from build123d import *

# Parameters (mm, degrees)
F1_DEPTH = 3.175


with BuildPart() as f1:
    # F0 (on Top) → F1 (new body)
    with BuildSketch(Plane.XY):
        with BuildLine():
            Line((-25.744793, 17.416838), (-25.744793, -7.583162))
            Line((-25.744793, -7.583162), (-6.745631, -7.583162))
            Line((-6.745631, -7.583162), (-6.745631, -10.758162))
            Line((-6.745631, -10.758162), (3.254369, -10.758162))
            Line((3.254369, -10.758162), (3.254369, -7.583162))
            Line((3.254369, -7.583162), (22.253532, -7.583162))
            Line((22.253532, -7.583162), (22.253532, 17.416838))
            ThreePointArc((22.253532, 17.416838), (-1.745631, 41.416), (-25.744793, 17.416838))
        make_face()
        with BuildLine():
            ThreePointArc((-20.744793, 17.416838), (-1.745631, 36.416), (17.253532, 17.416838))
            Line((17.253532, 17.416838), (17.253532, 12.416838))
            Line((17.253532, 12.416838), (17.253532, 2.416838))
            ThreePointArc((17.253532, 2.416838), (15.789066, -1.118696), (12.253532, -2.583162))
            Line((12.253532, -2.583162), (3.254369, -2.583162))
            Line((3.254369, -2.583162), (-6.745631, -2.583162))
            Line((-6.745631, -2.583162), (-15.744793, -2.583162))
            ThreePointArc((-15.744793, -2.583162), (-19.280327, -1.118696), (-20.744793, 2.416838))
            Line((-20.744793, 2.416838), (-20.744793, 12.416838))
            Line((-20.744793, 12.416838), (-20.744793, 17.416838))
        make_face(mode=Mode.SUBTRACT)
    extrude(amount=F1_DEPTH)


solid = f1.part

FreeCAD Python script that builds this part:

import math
import FreeCAD as App
import Part
import Sketcher
from FreeCAD import Vector

doc = App.newDocument("Part")
params = doc.addObject("Spreadsheet::Sheet", "Params")
for row, (alias, value) in enumerate([
    ("sketch1_radius", "5 mm"),
    ("sketch1_width", "10 mm"),
    ("sketch1_height", "25 mm"),
    ("sketch1_height2", "15 mm"),
    ("pad1_length", "3.175 mm"),
], start=1):
    params.set(f"A{row}", alias)
    params.set(f"B{row}", "=" + value)
    params.setAlias(f"B{row}", alias)

body = doc.addObject("PartDesign::Body", "Body")

# Sketch on XY plane
sketch1 = doc.addObject("Sketcher::SketchObject", "Sketch")
body.addObject(sketch1)
sketch1.AttachmentSupport = (doc.XY_Plane, [""])
sketch1.MapMode = "FlatFace"
sketch1.addGeometry([
    Part.LineSegment(Vector(-25.7, 17.4, 0), Vector(-25.7, -7.6, 0)),  # 0
    Part.LineSegment(Vector(-25.7, -7.6, 0), Vector(-6.7, -7.6, 0)),  # 1
    Part.LineSegment(Vector(-6.7, -7.6, 0), Vector(-6.7, -10.8, 0)),  # 2
    Part.LineSegment(Vector(-6.7, -10.8, 0), Vector(3.3, -10.8, 0)),  # 3
    Part.LineSegment(Vector(3.3, -10.8, 0), Vector(3.3, -7.6, 0)),  # 4
    Part.LineSegment(Vector(3.3, -7.6, 0), Vector(22.3, -7.6, 0)),  # 5
    Part.LineSegment(Vector(22.3, -7.6, 0), Vector(22.3, 17.4, 0)),  # 6
    Part.ArcOfCircle(Part.Circle(Vector(-1.7, 17.4, 0), Vector(0, 0, 1), 24), math.radians(0), math.radians(180)),  # 7
    Part.LineSegment(Vector(-20.7, 2.4, 0), Vector(-20.7, 17.4, 0)),  # 8
    Part.ArcOfCircle(Part.Circle(Vector(-1.7, 17.4, 0), Vector(0, 0, 1), 19), math.radians(0), math.radians(180)),  # 9
    Part.LineSegment(Vector(17.3, 17.4, 0), Vector(17.3, 2.4, 0)),  # 10
    Part.ArcOfCircle(Part.Circle(Vector(12.3, 2.4, 0), Vector(0, 0, 1), 5), math.radians(-90), math.radians(0)),  # 11
    Part.LineSegment(Vector(12.3, -2.6, 0), Vector(-15.7, -2.6, 0)),  # 12
    Part.ArcOfCircle(Part.Circle(Vector(-15.7, 2.4, 0), Vector(0, 0, 1), 5), math.radians(180), math.radians(270)),  # 13
], False)
sketch1.addConstraint([
    Sketcher.Constraint("Coincident", 0, 2, 1, 1),
    Sketcher.Constraint("Coincident", 1, 2, 2, 1),
    Sketcher.Constraint("Coincident", 2, 2, 3, 1),
    Sketcher.Constraint("Coincident", 3, 2, 4, 1),
    Sketcher.Constraint("Coincident", 4, 2, 5, 1),
    Sketcher.Constraint("Coincident", 5, 2, 6, 1),
    Sketcher.Constraint("Tangent", 6, 2, 7, 1),
    Sketcher.Constraint("Tangent", 7, 2, 0, 1),
    Sketcher.Constraint("Tangent", 8, 2, 9, 2),
    Sketcher.Constraint("Tangent", 9, 1, 10, 1),
    Sketcher.Constraint("Tangent", 10, 2, 11, 2),
    Sketcher.Constraint("Tangent", 11, 1, 12, 1),
    Sketcher.Constraint("Tangent", 12, 2, 13, 2),
    Sketcher.Constraint("Tangent", 13, 1, 8, 1),
    Sketcher.Constraint("Vertical", 0),
    Sketcher.Constraint("Horizontal", 1),
    Sketcher.Constraint("Vertical", 2),
    Sketcher.Constraint("Horizontal", 3),
    Sketcher.Constraint("Vertical", 4),
    Sketcher.Constraint("Horizontal", 5),
    Sketcher.Constraint("Vertical", 6),
    Sketcher.Constraint("Vertical", 8),
    Sketcher.Constraint("Vertical", 10),
    Sketcher.Constraint("Horizontal", 12),
    Sketcher.Constraint("Coincident", 9, 3, 7, 3),
    Sketcher.Constraint("Equal", 11, 13),
    Sketcher.Constraint("Horizontal", 1, 2, 4, 2),
    Sketcher.Constraint("Equal", 1, 5),
    Sketcher.Constraint("Radius", 11, 5.0),
    Sketcher.Constraint("DistanceX", 3, 1, 3, 2, 10.0),
    Sketcher.Constraint("DistanceY", 0, 2, 0, 1, 25.0),
    Sketcher.Constraint("DistanceY", 8, 1, 8, 2, 15.0),
    Sketcher.Constraint("DistanceX", 0, 2, 13, 3, 10.0),
    Sketcher.Constraint("DistanceY", 2, 2, 2, 1, 3.175),
    Sketcher.Constraint("Radius", 7, 23.999163),
    Sketcher.Constraint("DistanceX", 7, 3, -1, 1, 1.745631),
    Sketcher.Constraint("DistanceY", 0, 2, -1, 1, 7.583162),
])
sketch1.setExpression("Constraints[28]", "Params.sketch1_radius")
sketch1.setExpression("Constraints[29]", "Params.sketch1_width")
sketch1.setExpression("Constraints[30]", "Params.sketch1_height")
sketch1.setExpression("Constraints[31]", "Params.sketch1_height2")
pad1 = doc.addObject("PartDesign::Pad", "Pad")
body.addObject(pad1)
pad1.Profile = sketch1
pad1.setExpression("Length", "Params.pad1_length")

doc.recompute()
